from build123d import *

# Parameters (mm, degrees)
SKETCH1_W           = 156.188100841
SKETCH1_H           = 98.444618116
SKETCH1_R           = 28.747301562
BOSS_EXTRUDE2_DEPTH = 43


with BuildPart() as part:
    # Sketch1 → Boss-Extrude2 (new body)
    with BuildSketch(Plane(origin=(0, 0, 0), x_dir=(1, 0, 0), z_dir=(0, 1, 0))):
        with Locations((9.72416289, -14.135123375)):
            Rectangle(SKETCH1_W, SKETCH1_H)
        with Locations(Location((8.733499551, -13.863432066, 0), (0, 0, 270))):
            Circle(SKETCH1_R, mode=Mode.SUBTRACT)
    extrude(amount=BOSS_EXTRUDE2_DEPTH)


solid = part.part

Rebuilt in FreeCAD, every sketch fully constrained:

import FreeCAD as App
import Part
import Sketcher
from FreeCAD import Vector
Q = App.Units.Quantity

doc = App.newDocument("Part")
params = doc.addObject("Spreadsheet::Sheet", "Params")
for row, (alias, value) in enumerate([
    ("pad1_length", "43 mm"),
], start=1):
    params.set(f"A{row}", alias)
    params.set(f"B{row}", "=" + value)
    params.setAlias(f"B{row}", alias)

body = doc.addObject("PartDesign::Body", "Body")

sketch1 = body.newObject("Sketcher::SketchObject", "Sketch")
sketch1.AttachmentSupport = (doc.getObject("XZ_Plane"), [""])
sketch1.MapMode = "FlatFace"
sketch1.addGeometry([
    Part.LineSegment(Vector(-68.369888, -35.087186, 0), Vector(-68.369888, 63.357432, 0)),
    Part.LineSegment(Vector(-68.369888, 63.357432, 0), Vector(87.818213, 63.357432, 0)),
    Part.LineSegment(Vector(87.818213, 63.357432, 0), Vector(87.818213, -35.087186, 0)),
    Part.LineSegment(Vector(87.818213, -35.087186, 0), Vector(-68.369888, -35.087186, 0)),
    Part.Circle(Vector(8.7335, 13.863432, 0), Vector(0, 0, 1), 28.747302),
], False)
sketch1.addConstraint([
    Sketcher.Constraint("Coincident", 0, 2, 1, 1),
    Sketcher.Constraint("Coincident", 1, 2, 2, 1),
    Sketcher.Constraint("Coincident", 2, 2, 3, 1),
    Sketcher.Constraint("Coincident", 3, 2, 0, 1),
    Sketcher.Constraint("Vertical", 0),
    Sketcher.Constraint("Horizontal", 1),
    Sketcher.Constraint("Vertical", 2),
    Sketcher.Constraint("Horizontal", 3),
    Sketcher.Constraint("Diameter", 4, Q("57.494603 mm")),
    Sketcher.Constraint("DistanceX", 1, 1, 1, 2, Q("156.188101 mm")),
    Sketcher.Constraint("DistanceY", 4, 3, 0, 2, Q("49.494 mm")),
    Sketcher.Constraint("DistanceY", 0, 1, 0, 2, Q("98.444618 mm")),
    Sketcher.Constraint("DistanceX", -1, 1, 4, 3, Q("8.7335 mm")),
    Sketcher.Constraint("DistanceY", -1, 1, 4, 3, Q("13.863432 mm")),
    Sketcher.Constraint("DistanceX", 0, 2, -1, 1, Q("68.369888 mm")),
])
pad1 = body.newObject("PartDesign::Pad", "Pad")
pad1.Profile = sketch1
pad1.setExpression("Length", "Params.pad1_length")
pad1.Reversed = True

doc.recompute()
